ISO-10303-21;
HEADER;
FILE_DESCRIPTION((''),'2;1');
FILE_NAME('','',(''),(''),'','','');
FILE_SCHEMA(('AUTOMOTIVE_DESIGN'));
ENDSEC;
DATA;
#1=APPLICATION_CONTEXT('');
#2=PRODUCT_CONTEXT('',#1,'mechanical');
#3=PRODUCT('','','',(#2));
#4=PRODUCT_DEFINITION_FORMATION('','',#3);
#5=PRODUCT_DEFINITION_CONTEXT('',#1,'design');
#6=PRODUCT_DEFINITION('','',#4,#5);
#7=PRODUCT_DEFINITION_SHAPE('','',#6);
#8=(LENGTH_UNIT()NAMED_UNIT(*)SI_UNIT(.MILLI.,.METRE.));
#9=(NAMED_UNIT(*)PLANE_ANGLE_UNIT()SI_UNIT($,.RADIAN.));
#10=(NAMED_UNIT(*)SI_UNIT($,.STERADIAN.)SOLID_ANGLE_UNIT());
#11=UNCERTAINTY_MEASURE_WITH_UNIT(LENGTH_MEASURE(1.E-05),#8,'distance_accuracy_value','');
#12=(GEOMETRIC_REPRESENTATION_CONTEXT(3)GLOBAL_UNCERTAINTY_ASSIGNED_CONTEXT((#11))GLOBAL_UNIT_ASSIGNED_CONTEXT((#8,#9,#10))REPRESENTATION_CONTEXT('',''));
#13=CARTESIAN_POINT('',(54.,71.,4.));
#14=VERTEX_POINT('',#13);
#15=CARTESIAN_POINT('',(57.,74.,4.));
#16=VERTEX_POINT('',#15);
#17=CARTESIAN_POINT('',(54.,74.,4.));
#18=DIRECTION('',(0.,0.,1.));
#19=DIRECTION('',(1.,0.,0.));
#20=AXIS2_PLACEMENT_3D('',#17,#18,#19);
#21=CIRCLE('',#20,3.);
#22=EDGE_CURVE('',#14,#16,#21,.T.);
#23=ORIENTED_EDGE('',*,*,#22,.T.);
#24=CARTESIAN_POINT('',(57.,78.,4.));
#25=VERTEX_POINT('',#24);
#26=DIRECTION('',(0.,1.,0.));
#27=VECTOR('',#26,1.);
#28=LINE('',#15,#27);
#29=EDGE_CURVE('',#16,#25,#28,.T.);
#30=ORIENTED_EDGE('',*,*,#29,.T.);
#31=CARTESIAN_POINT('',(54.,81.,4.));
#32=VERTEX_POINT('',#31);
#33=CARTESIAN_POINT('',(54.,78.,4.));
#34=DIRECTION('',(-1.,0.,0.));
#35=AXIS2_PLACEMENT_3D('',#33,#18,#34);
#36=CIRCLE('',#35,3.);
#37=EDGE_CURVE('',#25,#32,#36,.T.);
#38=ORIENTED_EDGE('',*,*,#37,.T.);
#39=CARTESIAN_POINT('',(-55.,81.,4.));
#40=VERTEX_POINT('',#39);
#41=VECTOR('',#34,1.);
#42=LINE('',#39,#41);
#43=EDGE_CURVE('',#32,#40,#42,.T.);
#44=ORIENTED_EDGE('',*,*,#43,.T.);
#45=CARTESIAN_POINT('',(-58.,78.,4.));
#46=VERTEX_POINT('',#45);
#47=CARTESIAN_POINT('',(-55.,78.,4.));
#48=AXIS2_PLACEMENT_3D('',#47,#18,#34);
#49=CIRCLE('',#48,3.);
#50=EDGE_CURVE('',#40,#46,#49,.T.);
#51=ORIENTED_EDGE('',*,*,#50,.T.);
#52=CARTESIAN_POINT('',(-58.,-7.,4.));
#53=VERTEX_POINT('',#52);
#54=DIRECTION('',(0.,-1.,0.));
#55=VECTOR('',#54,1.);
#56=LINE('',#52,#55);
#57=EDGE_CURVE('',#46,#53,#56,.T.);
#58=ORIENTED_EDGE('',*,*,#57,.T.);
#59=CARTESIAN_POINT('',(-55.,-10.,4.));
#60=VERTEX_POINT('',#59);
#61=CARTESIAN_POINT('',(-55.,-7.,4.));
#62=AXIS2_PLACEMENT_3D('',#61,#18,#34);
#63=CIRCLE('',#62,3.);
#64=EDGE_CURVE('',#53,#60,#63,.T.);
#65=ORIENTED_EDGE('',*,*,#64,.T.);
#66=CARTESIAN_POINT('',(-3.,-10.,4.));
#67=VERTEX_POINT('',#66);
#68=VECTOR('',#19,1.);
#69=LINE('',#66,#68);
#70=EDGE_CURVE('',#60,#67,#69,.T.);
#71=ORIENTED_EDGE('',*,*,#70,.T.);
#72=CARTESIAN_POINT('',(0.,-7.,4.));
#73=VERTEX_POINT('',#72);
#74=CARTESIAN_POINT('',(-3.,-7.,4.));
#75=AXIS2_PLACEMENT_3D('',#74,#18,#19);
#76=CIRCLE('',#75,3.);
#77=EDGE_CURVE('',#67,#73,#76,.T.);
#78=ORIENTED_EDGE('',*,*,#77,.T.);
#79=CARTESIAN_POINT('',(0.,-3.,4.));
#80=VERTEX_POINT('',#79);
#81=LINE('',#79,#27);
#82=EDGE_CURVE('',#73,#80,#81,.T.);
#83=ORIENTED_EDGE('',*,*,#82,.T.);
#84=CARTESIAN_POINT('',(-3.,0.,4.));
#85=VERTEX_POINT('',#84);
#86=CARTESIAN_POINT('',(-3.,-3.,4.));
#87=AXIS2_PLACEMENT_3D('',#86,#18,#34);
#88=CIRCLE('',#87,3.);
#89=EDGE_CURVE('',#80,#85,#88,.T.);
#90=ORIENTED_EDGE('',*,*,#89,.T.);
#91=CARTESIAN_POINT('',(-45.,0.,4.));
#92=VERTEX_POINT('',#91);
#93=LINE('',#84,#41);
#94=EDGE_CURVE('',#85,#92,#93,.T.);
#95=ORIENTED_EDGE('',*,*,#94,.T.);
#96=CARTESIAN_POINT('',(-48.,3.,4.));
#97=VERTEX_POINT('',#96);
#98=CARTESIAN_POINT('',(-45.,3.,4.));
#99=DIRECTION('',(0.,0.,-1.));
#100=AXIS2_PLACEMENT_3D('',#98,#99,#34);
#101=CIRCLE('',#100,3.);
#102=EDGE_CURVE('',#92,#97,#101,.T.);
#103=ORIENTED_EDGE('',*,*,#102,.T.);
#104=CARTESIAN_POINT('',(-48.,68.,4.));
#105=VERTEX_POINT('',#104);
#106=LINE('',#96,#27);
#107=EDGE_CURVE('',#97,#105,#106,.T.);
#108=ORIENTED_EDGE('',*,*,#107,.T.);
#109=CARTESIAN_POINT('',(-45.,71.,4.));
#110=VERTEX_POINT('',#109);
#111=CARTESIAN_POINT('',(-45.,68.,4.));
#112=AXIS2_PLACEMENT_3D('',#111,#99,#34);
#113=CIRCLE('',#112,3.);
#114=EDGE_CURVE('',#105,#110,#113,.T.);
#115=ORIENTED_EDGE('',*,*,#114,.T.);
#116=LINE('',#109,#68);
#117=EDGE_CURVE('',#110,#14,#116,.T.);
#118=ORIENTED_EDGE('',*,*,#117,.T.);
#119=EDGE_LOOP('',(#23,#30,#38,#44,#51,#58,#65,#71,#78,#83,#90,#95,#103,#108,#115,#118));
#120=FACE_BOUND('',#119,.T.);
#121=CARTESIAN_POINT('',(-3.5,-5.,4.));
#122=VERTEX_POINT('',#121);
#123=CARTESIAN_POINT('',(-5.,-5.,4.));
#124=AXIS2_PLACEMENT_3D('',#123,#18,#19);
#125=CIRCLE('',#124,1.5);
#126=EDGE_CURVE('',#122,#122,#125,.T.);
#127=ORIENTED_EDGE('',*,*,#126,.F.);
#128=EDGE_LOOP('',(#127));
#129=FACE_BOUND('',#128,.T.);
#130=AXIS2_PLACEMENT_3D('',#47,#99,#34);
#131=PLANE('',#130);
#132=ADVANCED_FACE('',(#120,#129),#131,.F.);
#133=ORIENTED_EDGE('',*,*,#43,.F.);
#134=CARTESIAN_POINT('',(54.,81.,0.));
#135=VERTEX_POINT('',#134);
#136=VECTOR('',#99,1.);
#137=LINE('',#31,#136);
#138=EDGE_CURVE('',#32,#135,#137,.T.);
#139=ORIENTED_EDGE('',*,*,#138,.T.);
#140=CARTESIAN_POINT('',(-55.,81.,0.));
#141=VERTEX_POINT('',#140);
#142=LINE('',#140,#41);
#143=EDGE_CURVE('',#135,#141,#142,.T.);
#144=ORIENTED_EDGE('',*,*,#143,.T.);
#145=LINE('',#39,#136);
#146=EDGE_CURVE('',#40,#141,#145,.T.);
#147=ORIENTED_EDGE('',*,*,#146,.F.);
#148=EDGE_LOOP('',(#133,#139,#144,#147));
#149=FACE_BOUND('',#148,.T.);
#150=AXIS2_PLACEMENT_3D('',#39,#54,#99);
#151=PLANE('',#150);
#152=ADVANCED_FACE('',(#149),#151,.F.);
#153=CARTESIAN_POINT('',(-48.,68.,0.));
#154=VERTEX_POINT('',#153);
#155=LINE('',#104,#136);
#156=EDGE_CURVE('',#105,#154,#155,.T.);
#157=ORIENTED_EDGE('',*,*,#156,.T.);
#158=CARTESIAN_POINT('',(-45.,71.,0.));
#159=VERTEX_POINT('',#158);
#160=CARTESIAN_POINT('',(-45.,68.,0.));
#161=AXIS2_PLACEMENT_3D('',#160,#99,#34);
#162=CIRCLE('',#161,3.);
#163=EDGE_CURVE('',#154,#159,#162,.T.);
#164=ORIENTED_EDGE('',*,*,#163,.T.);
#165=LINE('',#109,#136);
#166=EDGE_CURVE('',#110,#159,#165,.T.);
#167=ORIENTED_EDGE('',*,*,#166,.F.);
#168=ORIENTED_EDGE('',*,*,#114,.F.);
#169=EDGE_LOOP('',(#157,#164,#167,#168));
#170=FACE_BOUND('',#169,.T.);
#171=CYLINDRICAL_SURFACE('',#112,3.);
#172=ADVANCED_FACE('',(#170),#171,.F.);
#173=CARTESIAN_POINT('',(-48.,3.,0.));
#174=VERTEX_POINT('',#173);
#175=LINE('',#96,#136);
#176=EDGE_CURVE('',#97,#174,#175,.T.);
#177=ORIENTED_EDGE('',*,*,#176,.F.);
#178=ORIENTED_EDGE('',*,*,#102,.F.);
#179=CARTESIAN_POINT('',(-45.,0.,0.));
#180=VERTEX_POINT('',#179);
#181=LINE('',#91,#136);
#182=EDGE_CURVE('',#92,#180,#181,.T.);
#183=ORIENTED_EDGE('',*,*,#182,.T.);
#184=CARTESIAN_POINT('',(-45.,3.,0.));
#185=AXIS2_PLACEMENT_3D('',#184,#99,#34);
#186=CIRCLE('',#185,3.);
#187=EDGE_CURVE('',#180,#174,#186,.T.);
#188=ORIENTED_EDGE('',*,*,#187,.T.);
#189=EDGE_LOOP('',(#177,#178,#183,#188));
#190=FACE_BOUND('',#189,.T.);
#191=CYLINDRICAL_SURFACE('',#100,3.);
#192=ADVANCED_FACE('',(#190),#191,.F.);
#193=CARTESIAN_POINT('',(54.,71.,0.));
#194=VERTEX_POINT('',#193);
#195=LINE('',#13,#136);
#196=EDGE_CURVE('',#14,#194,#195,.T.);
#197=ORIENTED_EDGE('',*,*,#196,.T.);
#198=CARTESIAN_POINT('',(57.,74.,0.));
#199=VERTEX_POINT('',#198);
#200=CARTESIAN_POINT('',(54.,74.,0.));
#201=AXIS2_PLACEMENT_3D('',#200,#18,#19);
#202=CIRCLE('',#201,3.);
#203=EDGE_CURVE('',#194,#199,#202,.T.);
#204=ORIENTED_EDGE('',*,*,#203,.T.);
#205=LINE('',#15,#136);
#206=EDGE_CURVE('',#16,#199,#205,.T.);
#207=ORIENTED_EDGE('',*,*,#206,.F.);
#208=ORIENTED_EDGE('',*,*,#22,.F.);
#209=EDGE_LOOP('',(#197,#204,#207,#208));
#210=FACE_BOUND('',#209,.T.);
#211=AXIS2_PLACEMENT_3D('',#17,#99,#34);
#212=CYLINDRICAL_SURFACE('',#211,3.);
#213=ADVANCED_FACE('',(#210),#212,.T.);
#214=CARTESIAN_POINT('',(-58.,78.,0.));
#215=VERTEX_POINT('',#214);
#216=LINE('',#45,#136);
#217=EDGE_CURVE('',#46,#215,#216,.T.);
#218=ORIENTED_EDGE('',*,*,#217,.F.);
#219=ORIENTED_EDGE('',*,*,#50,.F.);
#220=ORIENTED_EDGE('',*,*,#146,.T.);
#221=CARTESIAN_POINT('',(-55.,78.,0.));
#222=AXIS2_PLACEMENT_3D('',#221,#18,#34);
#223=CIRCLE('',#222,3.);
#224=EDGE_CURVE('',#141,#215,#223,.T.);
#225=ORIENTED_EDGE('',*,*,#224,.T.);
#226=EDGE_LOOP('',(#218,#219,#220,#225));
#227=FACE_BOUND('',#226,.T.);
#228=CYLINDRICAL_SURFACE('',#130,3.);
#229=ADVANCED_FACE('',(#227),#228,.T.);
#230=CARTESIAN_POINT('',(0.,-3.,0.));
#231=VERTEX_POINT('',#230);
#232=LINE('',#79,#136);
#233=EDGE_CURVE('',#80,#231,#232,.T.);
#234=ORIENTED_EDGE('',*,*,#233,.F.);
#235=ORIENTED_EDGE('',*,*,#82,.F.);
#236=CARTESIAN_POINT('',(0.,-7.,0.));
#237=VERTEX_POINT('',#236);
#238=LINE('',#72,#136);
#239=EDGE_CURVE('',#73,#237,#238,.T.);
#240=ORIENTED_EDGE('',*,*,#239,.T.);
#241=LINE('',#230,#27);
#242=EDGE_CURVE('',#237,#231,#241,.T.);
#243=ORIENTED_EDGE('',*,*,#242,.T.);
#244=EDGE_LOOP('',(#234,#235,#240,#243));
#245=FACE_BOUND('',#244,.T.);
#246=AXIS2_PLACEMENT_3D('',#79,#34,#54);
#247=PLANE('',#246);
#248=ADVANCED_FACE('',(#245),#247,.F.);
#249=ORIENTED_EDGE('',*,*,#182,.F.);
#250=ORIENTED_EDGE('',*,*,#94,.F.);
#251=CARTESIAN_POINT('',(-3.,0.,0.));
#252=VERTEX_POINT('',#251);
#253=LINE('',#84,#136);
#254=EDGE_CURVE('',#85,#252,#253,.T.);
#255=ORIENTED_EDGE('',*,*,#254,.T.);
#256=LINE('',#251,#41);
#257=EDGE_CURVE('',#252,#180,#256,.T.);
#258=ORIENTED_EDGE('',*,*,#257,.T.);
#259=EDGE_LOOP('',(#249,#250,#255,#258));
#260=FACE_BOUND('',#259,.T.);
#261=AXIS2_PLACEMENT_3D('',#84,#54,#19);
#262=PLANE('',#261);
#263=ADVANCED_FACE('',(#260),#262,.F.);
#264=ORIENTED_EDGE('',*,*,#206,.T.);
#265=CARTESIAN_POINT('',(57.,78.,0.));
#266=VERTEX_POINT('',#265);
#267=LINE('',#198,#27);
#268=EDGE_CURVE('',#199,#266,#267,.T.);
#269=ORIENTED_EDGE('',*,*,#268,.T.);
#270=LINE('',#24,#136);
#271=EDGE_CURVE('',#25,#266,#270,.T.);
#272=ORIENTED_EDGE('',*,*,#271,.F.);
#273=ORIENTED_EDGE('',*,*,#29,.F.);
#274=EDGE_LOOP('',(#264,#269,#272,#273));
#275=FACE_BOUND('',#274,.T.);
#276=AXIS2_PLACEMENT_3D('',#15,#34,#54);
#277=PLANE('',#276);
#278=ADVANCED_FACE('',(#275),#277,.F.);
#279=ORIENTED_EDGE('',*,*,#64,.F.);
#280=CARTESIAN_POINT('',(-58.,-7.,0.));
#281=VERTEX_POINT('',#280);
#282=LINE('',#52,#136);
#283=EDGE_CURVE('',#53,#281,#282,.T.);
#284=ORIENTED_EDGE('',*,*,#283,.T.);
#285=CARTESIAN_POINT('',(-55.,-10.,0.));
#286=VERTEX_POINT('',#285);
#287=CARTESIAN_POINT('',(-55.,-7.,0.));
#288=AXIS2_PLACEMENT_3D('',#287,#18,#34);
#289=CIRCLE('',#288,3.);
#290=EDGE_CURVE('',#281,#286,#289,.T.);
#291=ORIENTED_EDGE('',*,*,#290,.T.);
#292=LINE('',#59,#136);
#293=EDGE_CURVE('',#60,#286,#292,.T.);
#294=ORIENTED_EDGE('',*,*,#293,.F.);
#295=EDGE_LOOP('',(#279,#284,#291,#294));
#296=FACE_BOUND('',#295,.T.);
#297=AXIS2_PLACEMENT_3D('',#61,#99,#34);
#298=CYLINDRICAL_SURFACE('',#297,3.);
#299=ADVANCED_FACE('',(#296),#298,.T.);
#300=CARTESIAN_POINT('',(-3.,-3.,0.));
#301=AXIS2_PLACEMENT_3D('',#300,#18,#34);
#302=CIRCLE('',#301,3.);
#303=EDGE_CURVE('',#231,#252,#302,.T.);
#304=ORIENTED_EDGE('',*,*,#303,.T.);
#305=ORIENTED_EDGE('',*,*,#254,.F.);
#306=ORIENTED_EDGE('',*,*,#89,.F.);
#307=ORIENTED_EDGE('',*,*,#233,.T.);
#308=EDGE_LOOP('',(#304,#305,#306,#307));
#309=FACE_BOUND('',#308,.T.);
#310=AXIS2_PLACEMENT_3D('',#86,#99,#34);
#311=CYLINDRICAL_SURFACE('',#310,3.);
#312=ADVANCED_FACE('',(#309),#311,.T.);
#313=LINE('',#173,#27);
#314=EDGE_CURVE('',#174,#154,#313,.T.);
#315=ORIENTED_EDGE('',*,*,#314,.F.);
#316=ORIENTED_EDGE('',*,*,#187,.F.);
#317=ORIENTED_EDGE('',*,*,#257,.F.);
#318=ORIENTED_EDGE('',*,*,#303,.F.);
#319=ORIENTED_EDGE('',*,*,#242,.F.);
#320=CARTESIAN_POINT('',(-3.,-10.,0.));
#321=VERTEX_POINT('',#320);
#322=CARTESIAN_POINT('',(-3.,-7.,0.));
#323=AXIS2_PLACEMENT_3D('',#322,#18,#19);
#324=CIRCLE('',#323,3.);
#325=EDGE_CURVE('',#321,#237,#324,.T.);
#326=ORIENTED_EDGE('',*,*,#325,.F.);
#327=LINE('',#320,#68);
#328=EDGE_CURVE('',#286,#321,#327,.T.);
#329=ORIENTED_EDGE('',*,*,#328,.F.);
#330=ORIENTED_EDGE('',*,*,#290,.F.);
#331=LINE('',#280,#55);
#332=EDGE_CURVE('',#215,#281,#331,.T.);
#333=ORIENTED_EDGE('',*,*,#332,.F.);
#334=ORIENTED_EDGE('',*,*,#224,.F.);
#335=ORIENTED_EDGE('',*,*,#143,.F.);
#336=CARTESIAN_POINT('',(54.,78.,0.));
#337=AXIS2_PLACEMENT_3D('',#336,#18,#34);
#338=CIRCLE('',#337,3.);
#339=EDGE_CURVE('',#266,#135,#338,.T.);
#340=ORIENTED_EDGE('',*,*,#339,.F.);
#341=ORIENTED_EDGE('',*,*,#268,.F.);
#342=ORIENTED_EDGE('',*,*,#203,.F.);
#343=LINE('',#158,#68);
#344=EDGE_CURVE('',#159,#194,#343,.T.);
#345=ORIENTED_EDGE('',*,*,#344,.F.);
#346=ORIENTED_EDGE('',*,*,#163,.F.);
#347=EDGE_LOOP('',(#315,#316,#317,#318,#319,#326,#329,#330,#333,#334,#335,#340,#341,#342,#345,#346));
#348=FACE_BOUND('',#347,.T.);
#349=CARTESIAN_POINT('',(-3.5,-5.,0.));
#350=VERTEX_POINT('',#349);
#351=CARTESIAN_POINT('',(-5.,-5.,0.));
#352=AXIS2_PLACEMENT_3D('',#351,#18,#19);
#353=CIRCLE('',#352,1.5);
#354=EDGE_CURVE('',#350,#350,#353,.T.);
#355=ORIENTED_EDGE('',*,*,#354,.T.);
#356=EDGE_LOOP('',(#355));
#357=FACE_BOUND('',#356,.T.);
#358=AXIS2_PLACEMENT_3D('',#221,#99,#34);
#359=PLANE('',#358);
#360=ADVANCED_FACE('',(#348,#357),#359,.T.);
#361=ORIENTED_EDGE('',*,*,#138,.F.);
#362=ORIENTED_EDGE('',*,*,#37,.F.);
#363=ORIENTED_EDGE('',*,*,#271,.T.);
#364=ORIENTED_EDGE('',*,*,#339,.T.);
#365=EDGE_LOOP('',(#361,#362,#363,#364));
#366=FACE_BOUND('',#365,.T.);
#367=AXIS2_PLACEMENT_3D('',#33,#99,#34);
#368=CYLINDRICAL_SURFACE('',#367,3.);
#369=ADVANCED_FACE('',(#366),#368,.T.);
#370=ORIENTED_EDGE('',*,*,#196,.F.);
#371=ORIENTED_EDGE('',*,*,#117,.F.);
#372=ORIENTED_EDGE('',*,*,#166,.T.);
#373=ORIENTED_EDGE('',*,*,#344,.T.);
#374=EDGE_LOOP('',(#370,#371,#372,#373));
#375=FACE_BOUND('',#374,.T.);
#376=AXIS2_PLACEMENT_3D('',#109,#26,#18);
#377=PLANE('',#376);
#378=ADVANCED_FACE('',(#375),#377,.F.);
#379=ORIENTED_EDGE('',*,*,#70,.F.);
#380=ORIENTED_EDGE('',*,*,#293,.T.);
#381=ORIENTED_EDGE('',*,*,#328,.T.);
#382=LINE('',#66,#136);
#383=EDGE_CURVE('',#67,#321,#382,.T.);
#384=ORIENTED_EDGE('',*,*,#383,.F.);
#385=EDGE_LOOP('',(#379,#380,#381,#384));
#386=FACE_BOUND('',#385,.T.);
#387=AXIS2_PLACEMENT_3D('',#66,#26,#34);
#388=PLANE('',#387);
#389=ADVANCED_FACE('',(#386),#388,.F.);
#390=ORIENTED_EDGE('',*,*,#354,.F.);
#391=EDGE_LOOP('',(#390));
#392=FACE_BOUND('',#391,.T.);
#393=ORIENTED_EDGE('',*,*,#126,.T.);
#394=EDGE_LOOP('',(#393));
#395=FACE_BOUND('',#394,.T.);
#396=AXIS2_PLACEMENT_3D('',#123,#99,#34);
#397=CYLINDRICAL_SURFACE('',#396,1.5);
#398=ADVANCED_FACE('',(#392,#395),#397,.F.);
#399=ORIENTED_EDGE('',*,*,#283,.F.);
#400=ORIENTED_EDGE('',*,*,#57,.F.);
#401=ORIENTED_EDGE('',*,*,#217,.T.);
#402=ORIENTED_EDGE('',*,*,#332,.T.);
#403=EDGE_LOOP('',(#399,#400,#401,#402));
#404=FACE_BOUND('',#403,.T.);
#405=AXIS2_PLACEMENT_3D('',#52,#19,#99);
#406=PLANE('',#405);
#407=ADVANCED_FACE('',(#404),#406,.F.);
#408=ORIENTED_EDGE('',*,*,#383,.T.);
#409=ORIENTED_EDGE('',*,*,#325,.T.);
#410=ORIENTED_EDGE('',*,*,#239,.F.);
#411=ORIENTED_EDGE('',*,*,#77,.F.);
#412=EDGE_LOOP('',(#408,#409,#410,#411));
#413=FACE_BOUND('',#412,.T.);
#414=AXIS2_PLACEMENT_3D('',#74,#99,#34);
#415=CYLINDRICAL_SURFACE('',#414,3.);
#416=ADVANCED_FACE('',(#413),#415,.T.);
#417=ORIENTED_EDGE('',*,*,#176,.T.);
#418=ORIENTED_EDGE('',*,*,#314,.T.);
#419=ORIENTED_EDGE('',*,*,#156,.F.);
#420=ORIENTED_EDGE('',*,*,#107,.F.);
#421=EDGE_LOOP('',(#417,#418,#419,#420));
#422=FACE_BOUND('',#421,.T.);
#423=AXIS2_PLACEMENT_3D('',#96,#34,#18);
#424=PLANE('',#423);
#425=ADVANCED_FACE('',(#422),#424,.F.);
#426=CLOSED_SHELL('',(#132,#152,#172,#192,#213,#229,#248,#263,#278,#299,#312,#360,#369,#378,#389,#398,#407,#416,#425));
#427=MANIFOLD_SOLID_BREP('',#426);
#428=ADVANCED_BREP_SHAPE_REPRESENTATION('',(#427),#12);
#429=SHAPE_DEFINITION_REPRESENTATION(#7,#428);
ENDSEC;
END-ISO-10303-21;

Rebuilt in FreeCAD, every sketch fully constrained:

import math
import FreeCAD as App
import Part
import Sketcher

V = App.Vector

doc = App.newDocument("Part")
params = doc.addObject("Spreadsheet::Sheet", "Params")
for row, (alias, value) in enumerate([
    ("sketch1_diameter", "3 mm"),
    ("sketch1_radius", "3 mm"),
    ("sketch1_width", "42 mm"),
    ("sketch1_width2", "99 mm"),
    ("sketch1_width3", "109 mm"),
    ("pad1_length", "4 mm"),
], start=1):
    params.set(f"A{row}", alias)
    params.set(f"B{row}", "=" + value)
    params.setAlias(f"B{row}", alias)

body = doc.addObject("PartDesign::Body", "Body")

sketch1 = doc.addObject("Sketcher::SketchObject", "Sketch")
body.addObject(sketch1)
sketch1.AttachmentSupport = (doc.XY_Plane, [""])
sketch1.MapMode = "FlatFace"
sketch1.addGeometry([
    Part.LineSegment(V(-3, 0, 0), V(-45, 0, 0)),
    Part.ArcOfCircle(Part.Circle(V(-45, 3, 0), V(0, 0, 1), 3), math.radians(180), math.radians(270)),
    Part.LineSegment(V(-48, 3, 0), V(-48, 68, 0)),
    Part.ArcOfCircle(Part.Circle(V(-45, 68, 0), V(0, 0, 1), 3), math.radians(90), math.radians(180)),
    Part.LineSegment(V(-45, 71, 0), V(54, 71, 0)),
    Part.ArcOfCircle(Part.Circle(V(54, 74, 0), V(0, 0, 1), 3), math.radians(-90), math.radians(0)),
    Part.LineSegment(V(57, 74, 0), V(57, 78, 0)),
    Part.ArcOfCircle(Part.Circle(V(54, 78, 0), V(0, 0, 1), 3), math.radians(0), math.radians(90)),
    Part.LineSegment(V(54, 81, 0), V(-55, 81, 0)),
    Part.ArcOfCircle(Part.Circle(V(-55, 78, 0), V(0, 0, 1), 3), math.radians(90), math.radians(180)),
    Part.LineSegment(V(-58, 78, 0), V(-58, -7, 0)),
    Part.ArcOfCircle(Part.Circle(V(-55, -7, 0), V(0, 0, 1), 3), math.radians(180), math.radians(270)),
    Part.LineSegment(V(-55, -10, 0), V(-3, -10, 0)),
    Part.ArcOfCircle(Part.Circle(V(-3, -7, 0), V(0, 0, 1), 3), math.radians(-90), math.radians(0)),
    Part.LineSegment(V(0, -7, 0), V(0, -3, 0)),
    Part.ArcOfCircle(Part.Circle(V(-3, -3, 0), V(0, 0, 1), 3), math.radians(0), math.radians(90)),
    Part.Circle(V(-5, -5, 0), V(0, 0, 1), 1.5),
], False)
sketch1.addConstraint([
    Sketcher.Constraint("Tangent", 0, 2, 1, 2),
    Sketcher.Constraint("Tangent", 1, 1, 2, 1),
    Sketcher.Constraint("Tangent", 2, 2, 3, 2),
    Sketcher.Constraint("Tangent", 3, 1, 4, 1),
    Sketcher.Constraint("Tangent", 4, 2, 5, 1),
    Sketcher.Constraint("Tangent", 5, 2, 6, 1),
    Sketcher.Constraint("Tangent", 6, 2, 7, 1),
    Sketcher.Constraint("Tangent", 7, 2, 8, 1),
    Sketcher.Constraint("Tangent", 8, 2, 9, 1),
    Sketcher.Constraint("Tangent", 9, 2, 10, 1),
    Sketcher.Constraint("Tangent", 10, 2, 11, 1),
    Sketcher.Constraint("Tangent", 11, 2, 12, 1),
    Sketcher.Constraint("Tangent", 12, 2, 13, 1),
    Sketcher.Constraint("Tangent", 13, 2, 14, 1),
    Sketcher.Constraint("Tangent", 14, 2, 15, 1),
    Sketcher.Constraint("Tangent", 15, 2, 0, 1),
    Sketcher.Constraint("Horizontal", 0),
    Sketcher.Constraint("Vertical", 2),
    Sketcher.Constraint("Horizontal", 4),
    Sketcher.Constraint("Vertical", 6),
    Sketcher.Constraint("Horizontal", 8),
    Sketcher.Constraint("Vertical", 10),
    Sketcher.Constraint("Horizontal", 12),
    Sketcher.Constraint("Vertical", 14),
    Sketcher.Constraint("Equal", 1, 3),
    Sketcher.Constraint("Equal", 3, 5),
    Sketcher.Constraint("Equal", 5, 7),
    Sketcher.Constraint("Equal", 7, 9),
    Sketcher.Constraint("Equal", 9, 11),
    Sketcher.Constraint("Equal", 11, 13),
    Sketcher.Constraint("Equal", 13, 15),
    Sketcher.Constraint("PointOnObject", 0, 2, -1),
    Sketcher.Constraint("PointOnObject", 13, 2, -2),
    Sketcher.Constraint("Equal", 6, 14),
    Sketcher.Constraint("Diameter", 16, 3.0),
    Sketcher.Constraint("Radius", 1, 3.0),
    Sketcher.Constraint("DistanceX", 0, 2, 0, 1, 42.0),
    Sketcher.Constraint("DistanceX", 4, 1, 4, 2, 99.0),
    Sketcher.Constraint("DistanceX", 8, 2, 8, 1, 109.0),
    Sketcher.Constraint("DistanceY", 2, 1, 2, 2, 65.0),
    Sketcher.Constraint("DistanceY", 6, 1, 6, 2, 4.0),
    Sketcher.Constraint("DistanceX", 16, 3, -1, 1, 5.0),
    Sketcher.Constraint("DistanceY", 16, 3, -1, 1, 5.0),
])
sketch1.setExpression("Constraints[34]", "Params.sketch1_diameter")
sketch1.setExpression("Constraints[35]", "Params.sketch1_radius")
sketch1.setExpression("Constraints[36]", "Params.sketch1_width")
sketch1.setExpression("Constraints[37]", "Params.sketch1_width2")
sketch1.setExpression("Constraints[38]", "Params.sketch1_width3")
pad1 = doc.addObject("PartDesign::Pad", "Pad")
body.addObject(pad1)
pad1.Profile = sketch1
pad1.setExpression("Length", "Params.pad1_length")

doc.recompute()
